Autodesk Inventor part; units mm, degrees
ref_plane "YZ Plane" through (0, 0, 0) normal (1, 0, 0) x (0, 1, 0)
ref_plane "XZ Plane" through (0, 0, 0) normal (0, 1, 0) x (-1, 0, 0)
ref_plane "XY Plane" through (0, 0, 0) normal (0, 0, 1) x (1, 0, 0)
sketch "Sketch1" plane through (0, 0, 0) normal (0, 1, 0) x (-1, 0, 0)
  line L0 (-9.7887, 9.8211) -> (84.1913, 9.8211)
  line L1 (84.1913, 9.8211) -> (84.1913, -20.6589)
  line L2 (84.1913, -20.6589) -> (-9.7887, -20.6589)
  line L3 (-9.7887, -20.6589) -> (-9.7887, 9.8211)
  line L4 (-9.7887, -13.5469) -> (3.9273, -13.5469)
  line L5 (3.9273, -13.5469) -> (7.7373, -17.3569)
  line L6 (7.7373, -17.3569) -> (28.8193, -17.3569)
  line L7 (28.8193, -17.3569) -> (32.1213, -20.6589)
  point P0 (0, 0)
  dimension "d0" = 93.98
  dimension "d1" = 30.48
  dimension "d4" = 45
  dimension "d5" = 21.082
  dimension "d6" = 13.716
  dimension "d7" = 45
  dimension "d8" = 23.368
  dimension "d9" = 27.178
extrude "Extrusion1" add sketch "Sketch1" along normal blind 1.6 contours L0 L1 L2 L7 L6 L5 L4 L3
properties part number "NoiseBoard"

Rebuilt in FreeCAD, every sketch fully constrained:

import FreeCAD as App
import Part
import Sketcher
from FreeCAD import Vector
Q = App.Units.Quantity

doc = App.newDocument("Part")
body = doc.addObject("PartDesign::Body", "Body")

sketch1 = doc.addObject("Sketcher::SketchObject", "Sketch")
body.addObject(sketch1)
sketch1.AttachmentSupport = (doc.XZ_Plane, [""])
sketch1.MapMode = "FlatFace"
sketch1.addGeometry(Part.LineSegment(Vector(-84.2, 9.8, 0), Vector(9.8, 9.8, 0)), False)
sketch1.addGeometry(Part.LineSegment(Vector(9.8, 9.8, 0), Vector(9.8, -13.5, 0)), False)
sketch1.addGeometry(Part.LineSegment(Vector(9.8, -13.5, 0), Vector(-3.9, -13.5, 0)), False)
sketch1.addGeometry(Part.LineSegment(Vector(-3.9, -13.5, 0), Vector(-7.7, -17.4, 0)), False)
sketch1.addGeometry(Part.LineSegment(Vector(-7.7, -17.4, 0), Vector(-28.8, -17.4, 0)), False)
sketch1.addGeometry(Part.LineSegment(Vector(-28.8, -17.4, 0), Vector(-32.1, -20.7, 0)), False)
sketch1.addGeometry(Part.LineSegment(Vector(-32.1, -20.7, 0), Vector(-84.2, -20.7, 0)), False)
sketch1.addGeometry(Part.LineSegment(Vector(-84.2, -20.7, 0), Vector(-84.2, 9.8, 0)), False)
sketch1.addConstraint(Sketcher.Constraint("Coincident", 0, 2, 1, 1))
sketch1.addConstraint(Sketcher.Constraint("Coincident", 1, 2, 2, 1))
sketch1.addConstraint(Sketcher.Constraint("Coincident", 2, 2, 3, 1))
sketch1.addConstraint(Sketcher.Constraint("Coincident", 3, 2, 4, 1))
sketch1.addConstraint(Sketcher.Constraint("Coincident", 4, 2, 5, 1))
sketch1.addConstraint(Sketcher.Constraint("Coincident", 5, 2, 6, 1))
sketch1.addConstraint(Sketcher.Constraint("Coincident", 6, 2, 7, 1))
sketch1.addConstraint(Sketcher.Constraint("Coincident", 7, 2, 0, 1))
sketch1.addConstraint(Sketcher.Constraint("Horizontal", 0))
sketch1.addConstraint(Sketcher.Constraint("Vertical", 1))
sketch1.addConstraint(Sketcher.Constraint("Horizontal", 2))
sketch1.addConstraint(Sketcher.Constraint("Horizontal", 4))
sketch1.addConstraint(Sketcher.Constraint("Horizontal", 6))
sketch1.addConstraint(Sketcher.Constraint("Vertical", 7))
sketch1.addConstraint(Sketcher.Constraint("Parallel", 3, 5))
sketch1.addConstraint(Sketcher.Constraint("DistanceX", 0, 1, 0, 2, Q("3.7 in")))
sketch1.addConstraint(Sketcher.Constraint("DistanceY", 7, 1, 7, 2, Q("1.2 in")))
sketch1.addConstraint(Sketcher.Constraint("DistanceX", 2, 2, 2, 1, Q("0.54 in")))
sketch1.addConstraint(Sketcher.Constraint("DistanceX", 4, 2, 4, 1, Q("0.83 in")))
sketch1.addConstraint(Sketcher.Constraint("DistanceY", 1, 2, 1, 1, Q("0.92 in")))
sketch1.addConstraint(Sketcher.Constraint("DistanceY", 3, 2, 0, 2, Q("1.07 in")))
sketch1.addConstraint(Sketcher.Constraint("Angle", 3, Q("-135 deg")))
sketch1.addConstraint(Sketcher.Constraint("DistanceX", -1, 1, 0, 2, Q("9.7887 mm")))
sketch1.addConstraint(Sketcher.Constraint("DistanceY", -1, 1, 0, 2, Q("9.821 mm")))
pad1 = doc.addObject("PartDesign::Pad", "Pad")
body.addObject(pad1)
pad1.Profile = sketch1
pad1.Length = Q("0.0629921 in")
pad1.Reversed = True

doc.recompute()
